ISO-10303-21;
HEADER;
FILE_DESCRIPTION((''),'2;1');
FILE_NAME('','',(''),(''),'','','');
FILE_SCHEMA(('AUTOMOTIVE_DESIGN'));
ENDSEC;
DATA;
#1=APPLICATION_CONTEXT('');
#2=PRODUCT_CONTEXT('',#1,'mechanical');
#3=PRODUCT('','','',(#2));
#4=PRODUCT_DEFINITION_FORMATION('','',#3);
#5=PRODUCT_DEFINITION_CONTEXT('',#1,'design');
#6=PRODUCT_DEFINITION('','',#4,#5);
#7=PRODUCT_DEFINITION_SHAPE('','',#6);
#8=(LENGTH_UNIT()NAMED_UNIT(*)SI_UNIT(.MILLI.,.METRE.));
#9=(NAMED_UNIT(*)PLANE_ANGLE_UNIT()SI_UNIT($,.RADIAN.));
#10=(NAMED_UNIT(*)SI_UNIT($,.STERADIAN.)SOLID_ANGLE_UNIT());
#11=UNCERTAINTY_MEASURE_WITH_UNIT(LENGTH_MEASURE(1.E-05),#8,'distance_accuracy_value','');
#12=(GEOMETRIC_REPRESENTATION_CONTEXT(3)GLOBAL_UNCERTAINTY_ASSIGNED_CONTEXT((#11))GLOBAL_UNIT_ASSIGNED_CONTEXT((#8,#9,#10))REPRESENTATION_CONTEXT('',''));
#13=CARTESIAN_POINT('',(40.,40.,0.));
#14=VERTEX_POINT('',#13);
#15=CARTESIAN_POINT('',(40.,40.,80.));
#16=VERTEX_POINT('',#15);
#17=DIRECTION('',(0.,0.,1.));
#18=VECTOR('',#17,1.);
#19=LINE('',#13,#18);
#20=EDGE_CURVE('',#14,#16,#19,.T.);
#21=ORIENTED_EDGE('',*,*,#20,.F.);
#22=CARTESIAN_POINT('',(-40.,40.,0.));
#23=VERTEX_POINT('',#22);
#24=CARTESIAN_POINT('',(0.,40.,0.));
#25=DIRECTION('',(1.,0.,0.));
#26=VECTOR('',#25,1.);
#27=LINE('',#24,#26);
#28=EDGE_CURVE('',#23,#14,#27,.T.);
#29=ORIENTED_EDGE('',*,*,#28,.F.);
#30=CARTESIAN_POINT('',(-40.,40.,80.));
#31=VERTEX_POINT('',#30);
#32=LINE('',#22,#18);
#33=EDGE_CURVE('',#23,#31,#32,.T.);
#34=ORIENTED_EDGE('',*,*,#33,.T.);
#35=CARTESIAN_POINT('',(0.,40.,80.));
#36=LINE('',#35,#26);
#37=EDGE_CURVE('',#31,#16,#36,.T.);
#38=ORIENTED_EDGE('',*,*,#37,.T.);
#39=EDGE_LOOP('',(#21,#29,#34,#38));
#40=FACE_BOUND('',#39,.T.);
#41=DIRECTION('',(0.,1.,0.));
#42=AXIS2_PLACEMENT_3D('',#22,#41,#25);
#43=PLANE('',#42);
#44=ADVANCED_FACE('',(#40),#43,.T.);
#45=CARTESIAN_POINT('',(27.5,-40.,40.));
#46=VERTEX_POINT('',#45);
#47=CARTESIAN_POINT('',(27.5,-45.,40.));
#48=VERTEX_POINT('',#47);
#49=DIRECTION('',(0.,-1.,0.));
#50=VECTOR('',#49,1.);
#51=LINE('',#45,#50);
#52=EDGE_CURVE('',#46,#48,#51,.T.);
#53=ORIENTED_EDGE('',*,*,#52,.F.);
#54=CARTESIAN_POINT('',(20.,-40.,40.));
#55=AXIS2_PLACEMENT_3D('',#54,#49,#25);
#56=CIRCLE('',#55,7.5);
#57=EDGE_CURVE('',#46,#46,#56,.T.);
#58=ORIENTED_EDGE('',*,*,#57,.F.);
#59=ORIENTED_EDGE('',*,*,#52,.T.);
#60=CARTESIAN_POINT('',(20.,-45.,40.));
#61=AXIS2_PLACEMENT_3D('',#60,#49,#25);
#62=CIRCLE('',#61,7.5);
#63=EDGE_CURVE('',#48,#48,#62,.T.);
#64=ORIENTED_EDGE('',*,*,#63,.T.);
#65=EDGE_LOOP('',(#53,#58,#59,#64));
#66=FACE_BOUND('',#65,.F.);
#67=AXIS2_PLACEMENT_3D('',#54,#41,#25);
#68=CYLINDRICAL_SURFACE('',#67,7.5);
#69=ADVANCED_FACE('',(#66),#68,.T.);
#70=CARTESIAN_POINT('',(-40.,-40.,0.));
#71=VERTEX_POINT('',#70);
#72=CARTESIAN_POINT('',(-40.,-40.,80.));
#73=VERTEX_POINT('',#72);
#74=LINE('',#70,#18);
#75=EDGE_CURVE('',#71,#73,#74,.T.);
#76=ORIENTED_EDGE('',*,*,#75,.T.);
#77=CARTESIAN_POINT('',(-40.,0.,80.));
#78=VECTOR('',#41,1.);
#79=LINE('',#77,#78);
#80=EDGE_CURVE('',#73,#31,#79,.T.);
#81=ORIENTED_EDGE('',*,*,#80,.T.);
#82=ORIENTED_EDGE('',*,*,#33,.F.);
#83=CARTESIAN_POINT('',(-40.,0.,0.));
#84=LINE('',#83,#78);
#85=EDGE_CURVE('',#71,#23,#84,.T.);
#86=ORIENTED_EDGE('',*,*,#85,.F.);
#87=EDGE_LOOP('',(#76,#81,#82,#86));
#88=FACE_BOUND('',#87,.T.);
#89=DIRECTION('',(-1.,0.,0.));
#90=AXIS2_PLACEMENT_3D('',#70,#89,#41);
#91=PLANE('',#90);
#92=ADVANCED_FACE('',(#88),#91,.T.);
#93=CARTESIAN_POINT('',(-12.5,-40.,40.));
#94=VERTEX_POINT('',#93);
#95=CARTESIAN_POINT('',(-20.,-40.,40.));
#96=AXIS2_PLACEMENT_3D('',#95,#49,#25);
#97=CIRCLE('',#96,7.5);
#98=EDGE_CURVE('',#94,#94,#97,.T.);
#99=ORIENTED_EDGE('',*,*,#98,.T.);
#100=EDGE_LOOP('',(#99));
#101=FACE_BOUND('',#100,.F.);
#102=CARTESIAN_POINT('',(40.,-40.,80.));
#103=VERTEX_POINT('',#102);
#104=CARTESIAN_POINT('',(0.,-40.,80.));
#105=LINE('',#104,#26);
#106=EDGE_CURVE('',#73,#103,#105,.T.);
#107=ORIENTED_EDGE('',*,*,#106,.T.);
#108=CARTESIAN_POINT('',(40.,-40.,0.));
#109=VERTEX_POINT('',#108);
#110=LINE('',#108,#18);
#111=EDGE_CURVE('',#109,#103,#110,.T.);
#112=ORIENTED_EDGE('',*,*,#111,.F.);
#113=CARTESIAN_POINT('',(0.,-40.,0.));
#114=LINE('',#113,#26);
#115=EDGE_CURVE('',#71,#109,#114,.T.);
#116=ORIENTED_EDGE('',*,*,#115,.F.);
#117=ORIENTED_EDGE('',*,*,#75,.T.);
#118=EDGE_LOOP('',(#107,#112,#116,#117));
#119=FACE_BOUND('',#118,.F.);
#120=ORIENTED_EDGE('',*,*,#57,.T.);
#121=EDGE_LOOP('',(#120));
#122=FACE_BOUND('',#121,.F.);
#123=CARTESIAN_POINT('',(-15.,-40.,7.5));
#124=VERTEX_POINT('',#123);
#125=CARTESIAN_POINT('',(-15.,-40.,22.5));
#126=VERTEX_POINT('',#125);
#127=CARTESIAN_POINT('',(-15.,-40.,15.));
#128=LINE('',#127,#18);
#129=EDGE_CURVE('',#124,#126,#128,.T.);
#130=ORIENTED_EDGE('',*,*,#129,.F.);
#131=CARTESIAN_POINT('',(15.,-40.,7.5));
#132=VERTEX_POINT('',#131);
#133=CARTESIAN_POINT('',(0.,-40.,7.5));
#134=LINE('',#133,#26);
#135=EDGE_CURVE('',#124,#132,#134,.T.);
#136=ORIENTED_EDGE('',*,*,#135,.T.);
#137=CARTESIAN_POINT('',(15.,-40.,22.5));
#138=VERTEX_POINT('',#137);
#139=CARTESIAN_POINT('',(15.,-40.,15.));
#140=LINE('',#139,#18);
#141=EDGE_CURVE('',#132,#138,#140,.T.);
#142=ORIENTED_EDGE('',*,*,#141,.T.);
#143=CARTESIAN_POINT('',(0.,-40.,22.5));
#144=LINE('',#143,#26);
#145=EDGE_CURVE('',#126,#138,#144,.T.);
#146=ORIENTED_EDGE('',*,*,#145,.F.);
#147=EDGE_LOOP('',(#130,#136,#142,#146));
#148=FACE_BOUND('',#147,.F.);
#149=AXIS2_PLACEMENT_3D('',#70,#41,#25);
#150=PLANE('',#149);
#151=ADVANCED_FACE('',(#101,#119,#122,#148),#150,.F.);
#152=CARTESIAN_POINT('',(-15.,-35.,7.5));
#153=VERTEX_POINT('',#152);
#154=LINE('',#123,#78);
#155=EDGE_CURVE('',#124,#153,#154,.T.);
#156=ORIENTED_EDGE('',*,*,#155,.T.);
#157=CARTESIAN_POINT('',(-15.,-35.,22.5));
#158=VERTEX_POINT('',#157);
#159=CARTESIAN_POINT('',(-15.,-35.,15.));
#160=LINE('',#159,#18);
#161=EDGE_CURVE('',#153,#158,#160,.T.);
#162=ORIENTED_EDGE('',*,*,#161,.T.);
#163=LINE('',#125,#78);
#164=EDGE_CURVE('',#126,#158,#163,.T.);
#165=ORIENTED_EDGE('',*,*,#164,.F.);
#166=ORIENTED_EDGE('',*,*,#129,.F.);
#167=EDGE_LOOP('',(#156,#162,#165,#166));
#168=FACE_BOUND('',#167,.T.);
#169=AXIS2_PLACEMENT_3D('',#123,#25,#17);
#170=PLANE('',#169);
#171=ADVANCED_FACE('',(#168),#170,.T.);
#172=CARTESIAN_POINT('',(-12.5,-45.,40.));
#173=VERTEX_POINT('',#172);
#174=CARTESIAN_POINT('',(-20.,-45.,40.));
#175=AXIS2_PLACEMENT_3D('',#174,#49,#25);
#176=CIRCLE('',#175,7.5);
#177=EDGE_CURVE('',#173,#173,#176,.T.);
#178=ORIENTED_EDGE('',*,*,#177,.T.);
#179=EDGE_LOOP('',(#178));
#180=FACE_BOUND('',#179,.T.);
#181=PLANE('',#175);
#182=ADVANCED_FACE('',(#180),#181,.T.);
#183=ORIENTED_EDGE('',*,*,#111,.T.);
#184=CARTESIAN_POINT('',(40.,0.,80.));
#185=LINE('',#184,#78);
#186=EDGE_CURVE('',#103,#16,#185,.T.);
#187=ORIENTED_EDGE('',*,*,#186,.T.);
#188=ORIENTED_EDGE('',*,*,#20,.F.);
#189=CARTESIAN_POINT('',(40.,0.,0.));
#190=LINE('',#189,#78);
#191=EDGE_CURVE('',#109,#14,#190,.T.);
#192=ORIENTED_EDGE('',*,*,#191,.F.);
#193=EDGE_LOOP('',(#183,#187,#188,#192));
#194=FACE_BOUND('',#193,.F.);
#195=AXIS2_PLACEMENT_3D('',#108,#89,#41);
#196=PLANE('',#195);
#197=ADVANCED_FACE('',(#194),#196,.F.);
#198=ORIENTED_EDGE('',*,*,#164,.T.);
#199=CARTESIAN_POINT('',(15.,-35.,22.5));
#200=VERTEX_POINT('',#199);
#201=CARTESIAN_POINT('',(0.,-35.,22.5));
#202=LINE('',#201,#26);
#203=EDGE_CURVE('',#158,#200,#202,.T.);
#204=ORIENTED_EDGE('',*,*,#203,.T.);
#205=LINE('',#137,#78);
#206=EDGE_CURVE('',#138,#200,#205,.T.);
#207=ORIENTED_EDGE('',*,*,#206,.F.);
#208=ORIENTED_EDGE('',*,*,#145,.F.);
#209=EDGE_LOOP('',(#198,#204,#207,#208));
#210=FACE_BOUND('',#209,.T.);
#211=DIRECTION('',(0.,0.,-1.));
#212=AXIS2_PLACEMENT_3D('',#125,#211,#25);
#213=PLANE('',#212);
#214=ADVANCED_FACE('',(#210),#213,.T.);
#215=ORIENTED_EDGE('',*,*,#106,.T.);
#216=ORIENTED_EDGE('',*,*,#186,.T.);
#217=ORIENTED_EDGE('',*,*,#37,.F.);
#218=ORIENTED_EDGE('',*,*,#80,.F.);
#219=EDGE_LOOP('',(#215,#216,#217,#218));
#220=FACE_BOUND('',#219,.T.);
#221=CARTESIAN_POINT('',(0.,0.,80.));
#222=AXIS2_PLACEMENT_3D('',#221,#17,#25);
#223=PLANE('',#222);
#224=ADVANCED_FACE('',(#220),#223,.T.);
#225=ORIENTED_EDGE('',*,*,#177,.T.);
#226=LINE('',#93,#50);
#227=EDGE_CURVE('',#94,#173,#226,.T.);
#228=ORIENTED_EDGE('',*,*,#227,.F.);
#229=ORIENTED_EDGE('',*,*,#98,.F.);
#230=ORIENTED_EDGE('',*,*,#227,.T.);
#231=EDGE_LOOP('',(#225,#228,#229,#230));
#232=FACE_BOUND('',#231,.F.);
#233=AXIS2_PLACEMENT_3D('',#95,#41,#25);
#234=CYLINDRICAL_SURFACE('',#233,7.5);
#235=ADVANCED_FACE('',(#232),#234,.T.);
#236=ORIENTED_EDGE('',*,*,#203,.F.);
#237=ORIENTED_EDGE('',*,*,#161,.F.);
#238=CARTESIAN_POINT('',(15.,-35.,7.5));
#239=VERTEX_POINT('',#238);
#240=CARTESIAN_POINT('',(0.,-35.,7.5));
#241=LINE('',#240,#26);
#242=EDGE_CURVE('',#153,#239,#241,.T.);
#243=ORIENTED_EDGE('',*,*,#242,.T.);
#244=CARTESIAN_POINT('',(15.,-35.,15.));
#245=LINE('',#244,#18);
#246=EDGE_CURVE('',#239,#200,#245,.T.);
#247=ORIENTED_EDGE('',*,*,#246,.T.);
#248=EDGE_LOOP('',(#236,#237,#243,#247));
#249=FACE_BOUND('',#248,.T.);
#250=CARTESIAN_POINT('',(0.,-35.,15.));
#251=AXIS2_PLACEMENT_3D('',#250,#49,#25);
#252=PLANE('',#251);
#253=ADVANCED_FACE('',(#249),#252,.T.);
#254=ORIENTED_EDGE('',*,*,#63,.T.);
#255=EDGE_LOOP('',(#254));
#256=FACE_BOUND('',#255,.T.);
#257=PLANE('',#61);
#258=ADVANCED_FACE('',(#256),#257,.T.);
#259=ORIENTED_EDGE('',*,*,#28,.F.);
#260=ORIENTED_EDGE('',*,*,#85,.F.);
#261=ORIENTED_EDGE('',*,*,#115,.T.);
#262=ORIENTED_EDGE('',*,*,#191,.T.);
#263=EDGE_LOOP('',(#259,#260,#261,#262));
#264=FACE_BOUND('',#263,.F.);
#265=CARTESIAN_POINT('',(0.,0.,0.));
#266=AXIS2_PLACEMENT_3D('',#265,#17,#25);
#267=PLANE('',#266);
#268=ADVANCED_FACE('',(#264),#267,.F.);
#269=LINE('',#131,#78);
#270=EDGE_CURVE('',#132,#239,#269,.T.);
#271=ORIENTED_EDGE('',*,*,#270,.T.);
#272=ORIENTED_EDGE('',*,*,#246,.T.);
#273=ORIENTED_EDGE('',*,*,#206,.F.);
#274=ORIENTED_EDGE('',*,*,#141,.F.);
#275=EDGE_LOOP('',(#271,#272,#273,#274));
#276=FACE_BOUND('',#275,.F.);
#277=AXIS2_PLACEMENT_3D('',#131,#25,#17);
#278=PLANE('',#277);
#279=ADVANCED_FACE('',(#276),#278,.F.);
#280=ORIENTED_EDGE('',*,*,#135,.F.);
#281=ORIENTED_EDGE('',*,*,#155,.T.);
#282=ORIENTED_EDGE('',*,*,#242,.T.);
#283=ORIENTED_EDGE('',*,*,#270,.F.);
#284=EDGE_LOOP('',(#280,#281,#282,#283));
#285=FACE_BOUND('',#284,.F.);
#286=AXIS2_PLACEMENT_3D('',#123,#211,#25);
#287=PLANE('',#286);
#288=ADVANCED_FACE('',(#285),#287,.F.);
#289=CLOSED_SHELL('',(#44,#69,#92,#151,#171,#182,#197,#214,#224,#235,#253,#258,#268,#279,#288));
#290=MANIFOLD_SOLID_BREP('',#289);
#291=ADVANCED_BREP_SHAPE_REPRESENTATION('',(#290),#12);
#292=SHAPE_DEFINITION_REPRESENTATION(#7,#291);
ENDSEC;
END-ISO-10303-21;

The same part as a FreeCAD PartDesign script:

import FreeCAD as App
import Part
import Sketcher
from FreeCAD import Vector


def add_polygon(sketch, points):
    """Adds a closed chain of lines whose ends are joined by coincident constraints."""
    first, n = sketch.GeometryCount, len(points)
    for a, b in zip(points, points[1:] + points[:1]):
        sketch.addGeometry(Part.LineSegment(App.Vector(*a, 0), App.Vector(*b, 0)), False)
    for i in range(n):
        sketch.addConstraint(Sketcher.Constraint("Coincident", first + i, 2, first + (i + 1) % n, 1))

doc = App.newDocument("Part")
body = doc.addObject("PartDesign::Body", "Body")

sketch1 = doc.addObject("Sketcher::SketchObject", "Sketch")
body.addObject(sketch1)
sketch1.AttachmentSupport = (doc.XY_Plane, [""])
sketch1.MapMode = "FlatFace"
add_polygon(sketch1, [(-40, 40), (-40, -40), (40, -40), (40, 40)])
sketch1.addConstraint([
    Sketcher.Constraint("Vertical", 0),
    Sketcher.Constraint("Horizontal", 1),
    Sketcher.Constraint("Vertical", 2),
    Sketcher.Constraint("Horizontal", 3),
    Sketcher.Constraint("Symmetric", 0, 2, 2, 2, -1, 1),
    Sketcher.Constraint("Equal", 3, 0),
    Sketcher.Constraint("DistanceX", 1, 1, 1, 2, 80.0),
])
pad1 = doc.addObject("PartDesign::Pad", "Pad")
body.addObject(pad1)
pad1.Profile = sketch1
pad1.Length = 80

sketch2 = doc.addObject("Sketcher::SketchObject", "Sketch001")
body.addObject(sketch2)
sketch2.AttachmentSupport = (doc.XZ_Plane, [""])
sketch2.MapMode = "FlatFace"
sketch2.AttachmentOffset = App.Placement(Vector(0, 0, 40), App.Rotation())
sketch2.addGeometry([
    Part.Circle(Vector(-20, 40, 0), Vector(0, 0, 1), 8),
    Part.Circle(Vector(20, 40, 0), Vector(0, 0, 1), 8),
], False)
sketch2.addConstraint([
    Sketcher.Constraint("Equal", 0, 1),
    Sketcher.Constraint("Symmetric", 0, 3, 1, 3, -2),
    Sketcher.Constraint("Diameter", 0, 15.0),
    Sketcher.Constraint("DistanceX", 0, 3, -1, 1, 20.0),
    Sketcher.Constraint("DistanceY", -1, 1, 0, 3, 40.0),
])
pad2 = doc.addObject("PartDesign::Pad", "Pad001")
body.addObject(pad2)
pad2.Profile = sketch2
pad2.Length = 5

sketch3 = doc.addObject("Sketcher::SketchObject", "Sketch002")
body.addObject(sketch3)
sketch3.AttachmentSupport = (doc.XZ_Plane, [""])
sketch3.MapMode = "FlatFace"
sketch3.AttachmentOffset = App.Placement(Vector(0, 0, 40), App.Rotation())
add_polygon(sketch3, [(-15, 22), (-15, 8), (15, 8), (15, 22)])
sketch3.addConstraint([
    Sketcher.Constraint("Vertical", 0),
    Sketcher.Constraint("Horizontal", 1),
    Sketcher.Constraint("Vertical", 2),
    Sketcher.Constraint("Horizontal", 3),
    Sketcher.Constraint("DistanceX", 1, 1, 1, 2, 30.0),
    Sketcher.Constraint("DistanceY", 0, 2, 0, 1, 15.0),
    Sketcher.Constraint("DistanceX", 0, 2, -1, 1, 15.0),
    Sketcher.Constraint("DistanceY", -1, 1, 0, 2, 7.5),
])
pocket1 = doc.addObject("PartDesign::Pocket", "Pocket")
body.addObject(pocket1)
pocket1.Profile = sketch3
pocket1.Length = 5

doc.recompute()
